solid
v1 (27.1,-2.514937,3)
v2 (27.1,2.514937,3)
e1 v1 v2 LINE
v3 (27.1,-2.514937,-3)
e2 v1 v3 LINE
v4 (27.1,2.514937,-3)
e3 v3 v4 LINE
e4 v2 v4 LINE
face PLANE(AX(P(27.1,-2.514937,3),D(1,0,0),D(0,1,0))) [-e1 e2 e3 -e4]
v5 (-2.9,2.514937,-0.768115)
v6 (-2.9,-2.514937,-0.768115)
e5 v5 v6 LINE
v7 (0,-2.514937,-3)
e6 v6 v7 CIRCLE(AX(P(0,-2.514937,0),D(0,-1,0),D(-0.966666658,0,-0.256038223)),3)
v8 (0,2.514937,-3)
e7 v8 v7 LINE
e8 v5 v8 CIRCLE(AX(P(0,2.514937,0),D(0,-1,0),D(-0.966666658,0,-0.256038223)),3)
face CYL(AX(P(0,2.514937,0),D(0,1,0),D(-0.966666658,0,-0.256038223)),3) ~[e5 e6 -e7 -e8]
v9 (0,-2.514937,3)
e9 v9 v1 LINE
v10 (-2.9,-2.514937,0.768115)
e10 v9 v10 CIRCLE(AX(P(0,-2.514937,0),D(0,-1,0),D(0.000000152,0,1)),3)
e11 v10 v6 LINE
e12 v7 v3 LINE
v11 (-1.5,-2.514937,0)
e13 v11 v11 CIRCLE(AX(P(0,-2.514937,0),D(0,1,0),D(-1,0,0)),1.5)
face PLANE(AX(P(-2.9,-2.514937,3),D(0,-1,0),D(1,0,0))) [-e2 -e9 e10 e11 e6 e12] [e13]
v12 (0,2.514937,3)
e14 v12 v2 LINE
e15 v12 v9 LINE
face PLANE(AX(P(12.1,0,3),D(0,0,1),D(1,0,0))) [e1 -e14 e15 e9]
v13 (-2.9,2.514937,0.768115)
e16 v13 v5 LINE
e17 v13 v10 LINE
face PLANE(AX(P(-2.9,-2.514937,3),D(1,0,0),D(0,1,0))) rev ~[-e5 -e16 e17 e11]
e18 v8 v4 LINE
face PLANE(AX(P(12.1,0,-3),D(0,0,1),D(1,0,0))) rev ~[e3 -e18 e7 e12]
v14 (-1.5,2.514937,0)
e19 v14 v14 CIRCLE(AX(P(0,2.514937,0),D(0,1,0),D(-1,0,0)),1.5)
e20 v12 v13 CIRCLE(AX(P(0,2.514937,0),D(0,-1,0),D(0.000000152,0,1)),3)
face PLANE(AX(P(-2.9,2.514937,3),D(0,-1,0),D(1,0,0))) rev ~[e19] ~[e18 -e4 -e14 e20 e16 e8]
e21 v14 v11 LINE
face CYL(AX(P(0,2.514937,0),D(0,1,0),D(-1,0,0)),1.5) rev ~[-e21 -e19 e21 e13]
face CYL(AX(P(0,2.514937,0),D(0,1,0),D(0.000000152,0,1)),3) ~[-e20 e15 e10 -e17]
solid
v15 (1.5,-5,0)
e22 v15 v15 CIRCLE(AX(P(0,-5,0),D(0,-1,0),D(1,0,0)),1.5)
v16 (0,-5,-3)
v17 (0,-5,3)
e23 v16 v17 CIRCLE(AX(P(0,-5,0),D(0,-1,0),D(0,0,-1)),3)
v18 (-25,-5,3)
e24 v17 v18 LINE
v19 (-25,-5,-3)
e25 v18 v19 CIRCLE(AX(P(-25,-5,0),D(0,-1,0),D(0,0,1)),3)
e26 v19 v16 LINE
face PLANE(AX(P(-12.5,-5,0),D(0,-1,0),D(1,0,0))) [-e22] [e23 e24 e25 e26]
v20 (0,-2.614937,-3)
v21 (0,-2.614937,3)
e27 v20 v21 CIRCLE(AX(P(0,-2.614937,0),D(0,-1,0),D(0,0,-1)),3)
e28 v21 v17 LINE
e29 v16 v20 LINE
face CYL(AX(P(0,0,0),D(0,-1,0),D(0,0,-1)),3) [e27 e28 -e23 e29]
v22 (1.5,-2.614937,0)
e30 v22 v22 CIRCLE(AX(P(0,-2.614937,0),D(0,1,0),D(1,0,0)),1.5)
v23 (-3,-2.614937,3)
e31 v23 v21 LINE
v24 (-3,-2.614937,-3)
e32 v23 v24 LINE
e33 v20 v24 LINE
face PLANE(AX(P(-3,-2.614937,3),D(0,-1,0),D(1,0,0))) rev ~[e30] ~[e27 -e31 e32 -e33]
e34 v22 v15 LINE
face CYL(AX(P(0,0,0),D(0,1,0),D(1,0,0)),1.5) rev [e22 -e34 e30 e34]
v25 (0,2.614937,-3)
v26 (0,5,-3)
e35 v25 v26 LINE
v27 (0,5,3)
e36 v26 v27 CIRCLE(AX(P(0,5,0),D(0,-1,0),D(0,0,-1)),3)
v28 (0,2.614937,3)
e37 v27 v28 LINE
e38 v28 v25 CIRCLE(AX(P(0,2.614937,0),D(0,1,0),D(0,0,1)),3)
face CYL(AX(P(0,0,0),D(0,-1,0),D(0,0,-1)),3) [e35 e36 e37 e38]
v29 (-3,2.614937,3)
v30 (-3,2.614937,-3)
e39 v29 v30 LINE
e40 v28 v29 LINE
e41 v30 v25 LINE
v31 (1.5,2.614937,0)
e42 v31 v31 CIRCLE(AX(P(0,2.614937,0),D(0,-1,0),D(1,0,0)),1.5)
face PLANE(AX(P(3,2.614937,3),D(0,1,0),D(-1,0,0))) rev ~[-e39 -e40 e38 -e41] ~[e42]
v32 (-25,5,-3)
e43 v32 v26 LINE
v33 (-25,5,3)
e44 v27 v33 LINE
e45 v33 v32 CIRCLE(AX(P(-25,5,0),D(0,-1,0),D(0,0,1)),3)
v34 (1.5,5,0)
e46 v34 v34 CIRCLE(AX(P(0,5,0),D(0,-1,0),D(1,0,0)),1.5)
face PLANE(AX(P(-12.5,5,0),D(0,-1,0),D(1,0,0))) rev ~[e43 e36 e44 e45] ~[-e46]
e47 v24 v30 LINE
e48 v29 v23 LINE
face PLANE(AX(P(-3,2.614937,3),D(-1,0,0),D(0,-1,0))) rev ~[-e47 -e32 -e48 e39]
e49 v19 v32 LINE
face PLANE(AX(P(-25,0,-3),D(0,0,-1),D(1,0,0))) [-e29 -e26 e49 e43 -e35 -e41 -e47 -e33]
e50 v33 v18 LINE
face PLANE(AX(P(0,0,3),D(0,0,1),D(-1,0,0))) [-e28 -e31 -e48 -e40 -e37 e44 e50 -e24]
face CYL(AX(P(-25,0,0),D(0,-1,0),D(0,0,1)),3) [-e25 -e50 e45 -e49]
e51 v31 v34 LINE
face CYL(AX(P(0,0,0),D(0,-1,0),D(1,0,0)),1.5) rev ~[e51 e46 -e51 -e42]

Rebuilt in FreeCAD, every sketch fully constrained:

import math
import FreeCAD as App
import Part
import Sketcher


def add_polygon(sketch, points):
    """Adds a closed chain of lines whose ends are joined by coincident constraints."""
    first, n = sketch.GeometryCount, len(points)
    for a, b in zip(points, points[1:] + points[:1]):
        sketch.addGeometry(Part.LineSegment(App.Vector(*a, 0), App.Vector(*b, 0)), False)
    for i in range(n):
        sketch.addConstraint(Sketcher.Constraint("Coincident", first + i, 2, first + (i + 1) % n, 1))

doc = App.newDocument("Part")
body = doc.addObject("PartDesign::Body", "Body")

# Sketch on XZ plane
sketch1 = body.newObject("Sketcher::SketchObject", "Sketch")
sketch1.AttachmentSupport = (doc.getObject("XZ_Plane"), [""])
sketch1.MapMode = "FlatFace"
sketch1.addGeometry(Part.ArcOfCircle(Part.Circle(App.Vector(0, 0, 0), App.Vector(0, 0, 1), 3), math.radians(-90), math.radians(90)), False)
sketch1.addGeometry(Part.LineSegment(App.Vector(0, 3, 0), App.Vector(-25, 3, 0)), False)
sketch1.addGeometry(Part.ArcOfCircle(Part.Circle(App.Vector(-25, 0, 0), App.Vector(0, 0, 1), 3), math.radians(90), math.radians(270)), False)
sketch1.addGeometry(Part.LineSegment(App.Vector(-25, -3, 0), App.Vector(0, -3, 0)), False)
sketch1.addGeometry(Part.Circle(App.Vector(0, 0, 0), App.Vector(0, 0, 1), 1.5), False)
sketch1.addConstraint(Sketcher.Constraint("Tangent", 0, 2, 1, 1))
sketch1.addConstraint(Sketcher.Constraint("Tangent", 1, 2, 2, 1))
sketch1.addConstraint(Sketcher.Constraint("Tangent", 2, 2, 3, 1))
sketch1.addConstraint(Sketcher.Constraint("Tangent", 3, 2, 0, 1))
sketch1.addConstraint(Sketcher.Constraint("Horizontal", 1))
sketch1.addConstraint(Sketcher.Constraint("Horizontal", 3))
sketch1.addConstraint(Sketcher.Constraint("Coincident", 0, 3, -1, 1))
sketch1.addConstraint(Sketcher.Constraint("Coincident", 4, 3, -1, 1))
sketch1.addConstraint(Sketcher.Constraint("Diameter", 4, 3.0))
sketch1.addConstraint(Sketcher.Constraint("Radius", 0, 3.0))
sketch1.addConstraint(Sketcher.Constraint("DistanceX", 1, 2, 1, 1, 25.0))
pad1 = body.newObject("PartDesign::Pad", "Pad")
pad1.Profile = sketch1
pad1.Type = "TwoLengths"
pad1.Length = 5
pad1.Length2 = 5

# Sketch on XY plane
sketch2 = body.newObject("Sketcher::SketchObject", "Sketch001")
sketch2.AttachmentSupport = (doc.getObject("XY_Plane"), [""])
sketch2.MapMode = "FlatFace"
sketch2.AttachmentOffset = App.Placement(App.Vector(0, 0, 3), App.Rotation())
add_polygon(sketch2, [(-3, 3), (-3, -3), (3, -3), (3, 3)])  # lines 0-3
sketch2.addConstraint(Sketcher.Constraint("Vertical", 0))
sketch2.addConstraint(Sketcher.Constraint("Horizontal", 1))
sketch2.addConstraint(Sketcher.Constraint("Vertical", 2))
sketch2.addConstraint(Sketcher.Constraint("Horizontal", 3))
sketch2.addConstraint(Sketcher.Constraint("Symmetric", 0, 2, 2, 2, -1, 1))
sketch2.addConstraint(Sketcher.Constraint("DistanceX", 1, 1, 1, 2, 6.0))
sketch2.addConstraint(Sketcher.Constraint("DistanceY", 0, 2, 0, 1, 5.229874))
pocket1 = body.newObject("PartDesign::Pocket", "Pocket")
pocket1.Profile = sketch2
pocket1.Length = 25
body2 = doc.addObject("PartDesign::Body", "Body001")

# Sketch on XY plane
sketch3 = body2.newObject("Sketcher::SketchObject", "Sketch002")
sketch3.AttachmentSupport = (doc.getObject("XY_Plane001"), [""])
sketch3.MapMode = "FlatFace"
sketch3.AttachmentOffset = App.Placement(App.Vector(0, 0, 3), App.Rotation())
add_polygon(sketch3, [(-3, 3), (-3, -3), (27, -3), (27, 3)])  # lines 0-3
sketch3.addConstraint(Sketcher.Constraint("Vertical", 0))
sketch3.addConstraint(Sketcher.Constraint("Horizontal", 1))
sketch3.addConstraint(Sketcher.Constraint("Vertical", 2))
sketch3.addConstraint(Sketcher.Constraint("Horizontal", 3))
sketch3.addConstraint(Sketcher.Constraint("DistanceX", 1, 1, 1, 2, 30.0))
sketch3.addConstraint(Sketcher.Constraint("DistanceX", 0, 2, -1, 1, 2.9))
sketch3.addConstraint(Sketcher.Constraint("DistanceY", 0, 2, 0, 1, 5.029874))
sketch3.addConstraint(Sketcher.Constraint("DistanceY", 0, 2, -1, 1, 2.514937))
pad2 = body2.newObject("PartDesign::Pad", "Pad001")
pad2.Profile = sketch3
pad2.Length = 6
pad2.Reversed = True

# Sketch on XZ plane
sketch4 = body2.newObject("Sketcher::SketchObject", "Sketch003")
sketch4.AttachmentSupport = (doc.getObject("XZ_Plane001"), [""])
sketch4.MapMode = "FlatFace"
sketch4.AttachmentOffset = App.Placement(App.Vector(0, 0, -2.514937), App.Rotation())
sketch4.addGeometry(Part.Circle(App.Vector(0, 0, 0), App.Vector(0, 0, 1), 1.5), False)
sketch4.addGeometry(Part.LineSegment(App.Vector(-2.9, 3, 0), App.Vector(0, 3, 0)), False)
sketch4.addGeometry(Part.ArcOfCircle(Part.Circle(App.Vector(0, 0, 0), App.Vector(0, 0, 1), 3), math.radians(90), math.radians(165)), False)
sketch4.addGeometry(Part.LineSegment(App.Vector(-2.9, 0.8, 0), App.Vector(-2.9, 3, 0)), False)
sketch4.addGeometry(Part.LineSegment(App.Vector(-2.9, -3, 0), App.Vector(-2.9, -0.8, 0)), False)
sketch4.addGeometry(Part.ArcOfCircle(Part.Circle(App.Vector(0, 0, 0), App.Vector(0, 0, 1), 3), math.radians(-165), math.radians(-90)), False)
sketch4.addGeometry(Part.LineSegment(App.Vector(0, -3, 0), App.Vector(-2.9, -3, 0)), False)
sketch4.addConstraint(Sketcher.Constraint("Tangent", 1, 2, 2, 1))
sketch4.addConstraint(Sketcher.Constraint("Coincident", 2, 2, 3, 1))
sketch4.addConstraint(Sketcher.Constraint("Coincident", 3, 2, 1, 1))
sketch4.addConstraint(Sketcher.Constraint("Coincident", 4, 2, 5, 1))
sketch4.addConstraint(Sketcher.Constraint("Tangent", 5, 2, 6, 1))
sketch4.addConstraint(Sketcher.Constraint("Coincident", 6, 2, 4, 1))
sketch4.addConstraint(Sketcher.Constraint("Horizontal", 1))
sketch4.addConstraint(Sketcher.Constraint("Vertical", 3))
sketch4.addConstraint(Sketcher.Constraint("Vertical", 4))
sketch4.addConstraint(Sketcher.Constraint("Horizontal", 6))
sketch4.addConstraint(Sketcher.Constraint("Coincident", 0, 3, -1, 1))
sketch4.addConstraint(Sketcher.Constraint("Coincident", 2, 3, -1, 1))
sketch4.addConstraint(Sketcher.Constraint("Coincident", 5, 3, -1, 1))
sketch4.addConstraint(Sketcher.Constraint("Equal", 2, 5))
sketch4.addConstraint(Sketcher.Constraint("Vertical", 3, 2, 4, 2))
sketch4.addConstraint(Sketcher.Constraint("Diameter", 0, 3.0))
sketch4.addConstraint(Sketcher.Constraint("Radius", 2, 3.0))
sketch4.addConstraint(Sketcher.Constraint("DistanceX", 1, 1, 1, 2, 2.9))
pocket2 = body2.newObject("PartDesign::Pocket", "Pocket001")
pocket2.Profile = sketch4
pocket2.Type = "ThroughAll"
pocket2.Reversed = True

doc.recompute()
